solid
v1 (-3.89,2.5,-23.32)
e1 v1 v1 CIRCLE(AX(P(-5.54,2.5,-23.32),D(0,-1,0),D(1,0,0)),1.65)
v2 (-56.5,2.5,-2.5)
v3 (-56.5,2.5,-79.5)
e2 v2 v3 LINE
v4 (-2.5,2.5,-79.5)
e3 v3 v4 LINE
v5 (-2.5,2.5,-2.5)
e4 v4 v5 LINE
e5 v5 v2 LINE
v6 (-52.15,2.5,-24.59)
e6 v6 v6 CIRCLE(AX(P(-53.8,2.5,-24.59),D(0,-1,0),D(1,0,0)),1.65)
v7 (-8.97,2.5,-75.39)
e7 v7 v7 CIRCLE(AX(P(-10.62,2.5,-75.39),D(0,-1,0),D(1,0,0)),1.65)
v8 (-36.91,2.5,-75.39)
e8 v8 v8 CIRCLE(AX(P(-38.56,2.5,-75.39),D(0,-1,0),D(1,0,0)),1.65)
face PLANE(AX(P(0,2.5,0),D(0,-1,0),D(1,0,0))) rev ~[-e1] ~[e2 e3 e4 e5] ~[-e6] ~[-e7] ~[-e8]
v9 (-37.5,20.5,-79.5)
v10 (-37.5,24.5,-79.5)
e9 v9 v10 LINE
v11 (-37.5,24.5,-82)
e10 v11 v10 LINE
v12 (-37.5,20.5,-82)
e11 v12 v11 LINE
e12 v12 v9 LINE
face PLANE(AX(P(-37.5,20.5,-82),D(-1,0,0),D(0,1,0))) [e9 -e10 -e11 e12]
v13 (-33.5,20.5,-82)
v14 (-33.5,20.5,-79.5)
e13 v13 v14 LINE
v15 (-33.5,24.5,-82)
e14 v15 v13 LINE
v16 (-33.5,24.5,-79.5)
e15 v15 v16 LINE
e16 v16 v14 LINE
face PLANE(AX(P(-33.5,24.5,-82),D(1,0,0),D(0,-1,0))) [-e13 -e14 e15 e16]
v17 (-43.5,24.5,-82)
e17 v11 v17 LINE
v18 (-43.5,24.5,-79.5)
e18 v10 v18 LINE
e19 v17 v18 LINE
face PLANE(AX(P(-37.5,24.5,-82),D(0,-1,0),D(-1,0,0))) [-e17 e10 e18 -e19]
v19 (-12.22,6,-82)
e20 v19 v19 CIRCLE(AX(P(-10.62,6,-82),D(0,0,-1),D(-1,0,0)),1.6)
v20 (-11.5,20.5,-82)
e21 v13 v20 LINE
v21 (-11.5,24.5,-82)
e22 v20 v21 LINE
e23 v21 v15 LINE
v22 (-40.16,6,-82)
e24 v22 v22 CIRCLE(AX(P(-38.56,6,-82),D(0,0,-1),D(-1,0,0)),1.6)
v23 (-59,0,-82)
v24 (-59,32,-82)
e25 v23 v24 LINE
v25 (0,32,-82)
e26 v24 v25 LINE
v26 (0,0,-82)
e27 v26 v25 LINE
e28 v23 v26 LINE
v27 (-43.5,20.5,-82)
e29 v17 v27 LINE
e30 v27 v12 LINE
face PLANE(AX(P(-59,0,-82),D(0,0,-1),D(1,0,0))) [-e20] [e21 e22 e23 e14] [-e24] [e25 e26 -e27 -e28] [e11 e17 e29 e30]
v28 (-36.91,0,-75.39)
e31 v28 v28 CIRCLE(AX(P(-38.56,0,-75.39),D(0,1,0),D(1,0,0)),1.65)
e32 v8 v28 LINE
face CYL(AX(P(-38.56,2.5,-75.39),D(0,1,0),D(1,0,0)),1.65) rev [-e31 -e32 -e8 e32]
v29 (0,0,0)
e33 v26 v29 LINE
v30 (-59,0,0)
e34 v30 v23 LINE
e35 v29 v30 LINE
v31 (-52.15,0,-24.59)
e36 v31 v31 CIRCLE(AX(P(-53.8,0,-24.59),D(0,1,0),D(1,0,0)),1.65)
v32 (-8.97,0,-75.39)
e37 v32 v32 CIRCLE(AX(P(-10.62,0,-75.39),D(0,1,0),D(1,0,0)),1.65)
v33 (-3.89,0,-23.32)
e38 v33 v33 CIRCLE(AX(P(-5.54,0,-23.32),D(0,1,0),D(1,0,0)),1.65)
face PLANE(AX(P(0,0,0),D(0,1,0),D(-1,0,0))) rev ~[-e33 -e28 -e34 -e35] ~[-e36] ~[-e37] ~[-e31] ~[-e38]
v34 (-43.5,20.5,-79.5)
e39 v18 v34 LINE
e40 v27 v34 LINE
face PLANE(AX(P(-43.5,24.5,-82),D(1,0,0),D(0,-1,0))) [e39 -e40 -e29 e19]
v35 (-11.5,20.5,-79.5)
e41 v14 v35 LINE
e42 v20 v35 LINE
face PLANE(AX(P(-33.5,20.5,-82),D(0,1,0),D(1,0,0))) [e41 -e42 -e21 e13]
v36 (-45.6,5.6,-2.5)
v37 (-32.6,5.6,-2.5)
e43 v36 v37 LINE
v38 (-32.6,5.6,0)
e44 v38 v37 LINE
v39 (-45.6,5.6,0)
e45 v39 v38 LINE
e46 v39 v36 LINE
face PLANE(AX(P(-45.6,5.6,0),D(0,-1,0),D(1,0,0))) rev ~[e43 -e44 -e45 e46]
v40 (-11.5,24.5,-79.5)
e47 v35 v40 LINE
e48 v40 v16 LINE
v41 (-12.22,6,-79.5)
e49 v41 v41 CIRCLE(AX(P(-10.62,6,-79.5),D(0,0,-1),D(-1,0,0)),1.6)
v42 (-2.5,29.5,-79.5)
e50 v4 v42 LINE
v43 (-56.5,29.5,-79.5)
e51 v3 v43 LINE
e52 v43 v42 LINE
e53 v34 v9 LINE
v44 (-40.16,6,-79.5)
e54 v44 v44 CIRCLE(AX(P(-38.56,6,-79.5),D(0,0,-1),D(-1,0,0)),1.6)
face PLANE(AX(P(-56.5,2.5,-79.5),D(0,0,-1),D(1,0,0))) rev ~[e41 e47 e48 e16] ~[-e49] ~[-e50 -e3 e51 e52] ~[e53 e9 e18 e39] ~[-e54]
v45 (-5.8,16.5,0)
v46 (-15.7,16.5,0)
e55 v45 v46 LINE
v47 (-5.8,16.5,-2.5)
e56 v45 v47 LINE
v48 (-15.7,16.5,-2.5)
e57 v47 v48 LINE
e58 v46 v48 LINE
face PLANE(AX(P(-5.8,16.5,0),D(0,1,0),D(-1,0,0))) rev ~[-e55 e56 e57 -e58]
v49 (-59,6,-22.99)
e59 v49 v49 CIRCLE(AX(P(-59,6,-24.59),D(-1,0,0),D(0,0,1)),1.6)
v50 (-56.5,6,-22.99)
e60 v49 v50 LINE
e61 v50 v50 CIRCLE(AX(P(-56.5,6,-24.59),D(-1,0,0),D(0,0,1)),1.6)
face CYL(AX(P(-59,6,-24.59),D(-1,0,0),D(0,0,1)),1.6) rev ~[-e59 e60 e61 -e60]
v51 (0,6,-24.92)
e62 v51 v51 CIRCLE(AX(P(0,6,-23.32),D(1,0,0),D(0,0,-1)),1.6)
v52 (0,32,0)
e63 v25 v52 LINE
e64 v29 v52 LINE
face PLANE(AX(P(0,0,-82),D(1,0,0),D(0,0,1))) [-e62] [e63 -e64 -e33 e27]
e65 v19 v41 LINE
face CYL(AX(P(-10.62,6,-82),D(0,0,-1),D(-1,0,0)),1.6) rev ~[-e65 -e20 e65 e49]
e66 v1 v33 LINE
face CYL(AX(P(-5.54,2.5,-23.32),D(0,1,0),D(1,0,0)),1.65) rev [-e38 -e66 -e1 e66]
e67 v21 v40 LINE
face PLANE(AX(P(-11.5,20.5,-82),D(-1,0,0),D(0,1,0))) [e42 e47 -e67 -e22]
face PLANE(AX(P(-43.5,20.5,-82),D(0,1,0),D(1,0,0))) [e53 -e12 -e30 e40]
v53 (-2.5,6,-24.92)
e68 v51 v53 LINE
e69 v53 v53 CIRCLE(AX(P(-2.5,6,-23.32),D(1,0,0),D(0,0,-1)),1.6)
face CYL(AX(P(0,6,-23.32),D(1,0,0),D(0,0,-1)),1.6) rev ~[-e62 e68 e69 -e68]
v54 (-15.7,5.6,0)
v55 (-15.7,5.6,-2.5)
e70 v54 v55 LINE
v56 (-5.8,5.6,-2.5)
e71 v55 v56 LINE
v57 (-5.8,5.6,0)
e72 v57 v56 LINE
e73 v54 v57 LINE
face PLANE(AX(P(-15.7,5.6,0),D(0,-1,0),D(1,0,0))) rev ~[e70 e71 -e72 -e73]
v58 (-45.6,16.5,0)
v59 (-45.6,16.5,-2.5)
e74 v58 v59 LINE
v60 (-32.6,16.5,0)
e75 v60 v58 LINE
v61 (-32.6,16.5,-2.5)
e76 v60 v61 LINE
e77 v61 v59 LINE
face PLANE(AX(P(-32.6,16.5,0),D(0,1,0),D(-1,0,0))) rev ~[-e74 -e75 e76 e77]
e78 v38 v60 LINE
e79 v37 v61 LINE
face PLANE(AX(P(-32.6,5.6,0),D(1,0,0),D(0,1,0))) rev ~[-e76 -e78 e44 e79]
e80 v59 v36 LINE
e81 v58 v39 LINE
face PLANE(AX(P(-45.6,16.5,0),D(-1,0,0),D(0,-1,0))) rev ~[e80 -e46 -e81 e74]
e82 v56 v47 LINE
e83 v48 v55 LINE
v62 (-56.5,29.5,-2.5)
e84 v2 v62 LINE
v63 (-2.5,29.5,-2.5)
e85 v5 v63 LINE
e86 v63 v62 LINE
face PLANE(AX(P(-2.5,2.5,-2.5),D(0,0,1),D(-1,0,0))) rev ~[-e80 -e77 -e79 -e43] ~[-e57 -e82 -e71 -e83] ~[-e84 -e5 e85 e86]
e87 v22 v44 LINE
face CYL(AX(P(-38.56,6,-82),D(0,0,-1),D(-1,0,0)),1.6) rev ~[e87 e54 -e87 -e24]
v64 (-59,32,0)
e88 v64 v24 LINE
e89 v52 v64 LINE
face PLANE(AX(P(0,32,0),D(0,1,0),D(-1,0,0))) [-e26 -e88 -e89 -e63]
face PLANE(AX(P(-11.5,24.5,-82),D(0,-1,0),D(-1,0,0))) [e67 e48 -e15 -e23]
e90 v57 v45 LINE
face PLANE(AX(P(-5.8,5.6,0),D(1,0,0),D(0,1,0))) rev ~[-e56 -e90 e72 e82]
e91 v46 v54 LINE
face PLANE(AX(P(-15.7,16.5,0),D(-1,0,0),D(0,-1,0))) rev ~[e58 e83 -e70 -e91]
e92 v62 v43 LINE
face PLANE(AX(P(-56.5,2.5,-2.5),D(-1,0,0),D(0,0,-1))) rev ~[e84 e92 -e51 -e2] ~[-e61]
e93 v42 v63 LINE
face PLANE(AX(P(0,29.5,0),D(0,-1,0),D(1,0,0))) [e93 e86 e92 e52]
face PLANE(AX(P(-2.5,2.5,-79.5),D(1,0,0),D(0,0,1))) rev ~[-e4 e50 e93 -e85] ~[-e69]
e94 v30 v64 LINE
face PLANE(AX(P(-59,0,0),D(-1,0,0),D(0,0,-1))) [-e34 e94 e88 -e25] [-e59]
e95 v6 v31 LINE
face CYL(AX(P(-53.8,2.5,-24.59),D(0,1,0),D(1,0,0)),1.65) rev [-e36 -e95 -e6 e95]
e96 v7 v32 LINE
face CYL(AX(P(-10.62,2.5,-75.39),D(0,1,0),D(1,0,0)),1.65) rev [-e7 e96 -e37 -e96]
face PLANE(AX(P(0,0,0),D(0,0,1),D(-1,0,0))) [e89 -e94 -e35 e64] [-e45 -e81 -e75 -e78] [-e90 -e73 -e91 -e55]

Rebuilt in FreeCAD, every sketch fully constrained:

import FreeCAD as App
import Part
import Sketcher

V = App.Vector


def add_polygon(sketch, points):
    """Adds a closed chain of lines whose ends are joined by coincident constraints."""
    first, n = sketch.GeometryCount, len(points)
    for a, b in zip(points, points[1:] + points[:1]):
        sketch.addGeometry(Part.LineSegment(App.Vector(*a, 0), App.Vector(*b, 0)), False)
    for i in range(n):
        sketch.addConstraint(Sketcher.Constraint("Coincident", first + i, 2, first + (i + 1) % n, 1))

doc = App.newDocument("Part")
body = doc.addObject("PartDesign::Body", "Body")

# Sketch on XZ plane
sketch1 = doc.addObject("Sketcher::SketchObject", "Sketch")
body.addObject(sketch1)
sketch1.AttachmentSupport = (doc.XZ_Plane, [""])
sketch1.MapMode = "FlatFace"
add_polygon(sketch1, [(-59, 0), (0, 0), (0, -82), (-59, -82)])  # lines 0-3
sketch1.addConstraint([
    Sketcher.Constraint("Horizontal", 0),
    Sketcher.Constraint("Vertical", 1),
    Sketcher.Constraint("Horizontal", 2),
    Sketcher.Constraint("Vertical", 3),
    Sketcher.Constraint("Coincident", 0, 2, -1, 1),
    Sketcher.Constraint("DistanceX", 0, 1, 0, 2, 59.0),
    Sketcher.Constraint("DistanceY", 1, 2, 1, 1, 82.0),
])
pad1 = doc.addObject("PartDesign::Pad", "Pad")
body.addObject(pad1)
pad1.Profile = sketch1
pad1.Length = 32
pad1.Reversed = True

# Sketch on XZ plane
sketch2 = doc.addObject("Sketcher::SketchObject", "Sketch001")
body.addObject(sketch2)
sketch2.AttachmentSupport = (doc.XZ_Plane, [""])
sketch2.MapMode = "FlatFace"
sketch2.AttachmentOffset = App.Placement(V(0, 0, -2.5), App.Rotation())
add_polygon(sketch2, [(-2.5, -79.5), (-2.5, -2.5), (-56.5, -2.5), (-56.5, -79.5)])  # lines 0-3
sketch2.addConstraint([
    Sketcher.Constraint("Vertical", 0),
    Sketcher.Constraint("Horizontal", 1),
    Sketcher.Constraint("Vertical", 2),
    Sketcher.Constraint("Horizontal", 3),
    Sketcher.Constraint("DistanceX", 0, 2, -1, 1, 2.5),
    Sketcher.Constraint("DistanceY", 0, 2, -1, 1, 2.5),
    Sketcher.Constraint("DistanceX", 1, 2, 1, 1, 54.0),
    Sketcher.Constraint("DistanceY", 0, 1, 0, 2, 77.0),
])
pocket1 = doc.addObject("PartDesign::Pocket", "Pocket")
body.addObject(pocket1)
pocket1.Profile = sketch2
pocket1.Length = 27

# Sketch on XZ plane
sketch3 = doc.addObject("Sketcher::SketchObject", "Sketch002")
body.addObject(sketch3)
sketch3.AttachmentSupport = (doc.XZ_Plane, [""])
sketch3.MapMode = "FlatFace"
sketch3.AttachmentOffset = App.Placement(V(0, 0, -2.5), App.Rotation())
sketch3.addGeometry([
    Part.Circle(V(-53.8, -24.59, 0), V(0, 0, 1), 1.65),
    Part.Circle(V(-5.54, -23.32, 0), V(0, 0, 1), 1.65),
    Part.Circle(V(-38.56, -75.39, 0), V(0, 0, 1), 1.65),
    Part.Circle(V(-10.62, -75.39, 0), V(0, 0, 1), 1.65),
], False)
sketch3.addConstraint([
    Sketcher.Constraint("Equal", 0, 1),
    Sketcher.Constraint("Equal", 1, 2),
    Sketcher.Constraint("Equal", 2, 3),
    Sketcher.Constraint("Horizontal", 2, 3, 3, 3),
    Sketcher.Constraint("Diameter", 0, 3.3),
    Sketcher.Constraint("DistanceY", 2, 3, 0, 3, 50.8),
    Sketcher.Constraint("DistanceX", 0, 3, -1, 1, 53.8),
    Sketcher.Constraint("DistanceY", 0, 3, -1, 1, 24.59),
    Sketcher.Constraint("DistanceX", 1, 3, -1, 1, 5.54),
    Sketcher.Constraint("DistanceY", 1, 3, -1, 1, 23.32),
    Sketcher.Constraint("DistanceX", 2, 3, -1, 1, 38.56),
    Sketcher.Constraint("DistanceX", 3, 3, -1, 1, 10.62),
])
pocket2 = doc.addObject("PartDesign::Pocket", "Pocket001")
body.addObject(pocket2)
pocket2.Profile = sketch3
pocket2.Length = 27
pocket2.Reversed = True

# Sketch on XY plane
sketch4 = doc.addObject("Sketcher::SketchObject", "Sketch003")
body.addObject(sketch4)
sketch4.AttachmentSupport = (doc.XY_Plane, [""])
sketch4.MapMode = "FlatFace"
add_polygon(sketch4, [(-45.6, 16.5), (-45.6, 5.6), (-32.6, 5.6), (-32.6, 16.5)])  # lines 0-3
add_polygon(sketch4, [(-15.7, 16.5), (-15.7, 5.6), (-5.8, 5.6), (-5.8, 16.5)])  # lines 4-7
sketch4.addConstraint([
    Sketcher.Constraint("Vertical", 0),
    Sketcher.Constraint("Horizontal", 1),
    Sketcher.Constraint("Vertical", 2),
    Sketcher.Constraint("Horizontal", 3),
    Sketcher.Constraint("Vertical", 4),
    Sketcher.Constraint("Horizontal", 5),
    Sketcher.Constraint("Vertical", 6),
    Sketcher.Constraint("Horizontal", 7),
    Sketcher.Constraint("Horizontal", 1, 2, 4, 2),
    Sketcher.Constraint("Horizontal", 3, 2, 6, 2),
    Sketcher.Constraint("DistanceX", 1, 1, 1, 2, 13.0),
    Sketcher.Constraint("DistanceX", 5, 1, 5, 2, 9.9),
    Sketcher.Constraint("DistanceY", 0, 2, 0, 1, 10.9),
    Sketcher.Constraint("DistanceX", 0, 2, -1, 1, 45.6),
    Sketcher.Constraint("DistanceY", -1, 1, 0, 2, 5.6),
    Sketcher.Constraint("DistanceX", 4, 2, -1, 1, 15.7),
])
pocket3 = doc.addObject("PartDesign::Pocket", "Pocket002")
body.addObject(pocket3)
pocket3.Profile = sketch4
pocket3.Length = 5

# Sketch on XY plane
sketch5 = doc.addObject("Sketcher::SketchObject", "Sketch004")
body.addObject(sketch5)
sketch5.AttachmentSupport = (doc.XY_Plane, [""])
sketch5.MapMode = "FlatFace"
sketch5.AttachmentOffset = App.Placement(V(0, 0, -82), App.Rotation())
add_polygon(sketch5, [(-33.5, 24.5), (-11.5, 24.5), (-11.5, 20.5), (-33.5, 20.5)])  # lines 0-3
add_polygon(sketch5, [(-43.5, 24.5), (-37.5, 24.5), (-37.5, 20.5), (-43.5, 20.5)])  # lines 4-7
sketch5.addConstraint([
    Sketcher.Constraint("Horizontal", 0),
    Sketcher.Constraint("Vertical", 1),
    Sketcher.Constraint("Horizontal", 2),
    Sketcher.Constraint("Vertical", 3),
    Sketcher.Constraint("Horizontal", 4),
    Sketcher.Constraint("Vertical", 5),
    Sketcher.Constraint("Horizontal", 6),
    Sketcher.Constraint("Vertical", 7),
    Sketcher.Constraint("Horizontal", 3, 2, 4, 2),
    Sketcher.Constraint("Horizontal", 2, 2, 5, 2),
    Sketcher.Constraint("DistanceX", 0, 1, 0, 2, 22.0),
    Sketcher.Constraint("DistanceX", 4, 1, 4, 2, 6.0),
    Sketcher.Constraint("DistanceY", 1, 2, 1, 1, 4.0),
    Sketcher.Constraint("DistanceX", 4, 2, 3, 2, 4.0),
    Sketcher.Constraint("DistanceX", 0, 2, -1, 1, 11.5),
    Sketcher.Constraint("DistanceY", -1, 1, 0, 2, 24.5),
])
pocket4 = doc.addObject("PartDesign::Pocket", "Pocket003")
body.addObject(pocket4)
pocket4.Profile = sketch5
pocket4.Length = 5
pocket4.Reversed = True

# Sketch on YZ plane
sketch6 = doc.addObject("Sketcher::SketchObject", "Sketch005")
body.addObject(sketch6)
sketch6.AttachmentSupport = (doc.YZ_Plane, [""])
sketch6.MapMode = "FlatFace"
sketch6.AttachmentOffset = App.Placement(V(0, 0, -59), App.Rotation())
sketch6.addGeometry(Part.Circle(V(6, -24.59, 0), V(0, 0, 1), 1.6), False)
sketch6.addConstraint([
    Sketcher.Constraint("Diameter", 0, 3.2),
    Sketcher.Constraint("DistanceX", -1, 1, 0, 3, 6.0),
    Sketcher.Constraint("DistanceY", 0, 3, -1, 1, 24.59),
])
pocket5 = doc.addObject("PartDesign::Pocket", "Pocket004")
body.addObject(pocket5)
pocket5.Profile = sketch6
pocket5.Length = 5
pocket5.Reversed = True

# Sketch on YZ plane
sketch7 = doc.addObject("Sketcher::SketchObject", "Sketch006")
body.addObject(sketch7)
sketch7.AttachmentSupport = (doc.YZ_Plane, [""])
sketch7.MapMode = "FlatFace"
sketch7.addGeometry(Part.Circle(V(6, -23.32, 0), V(0, 0, 1), 1.6), False)
sketch7.addConstraint([
    Sketcher.Constraint("Diameter", 0, 3.2),
    Sketcher.Constraint("DistanceX", -1, 1, 0, 3, 6.0),
    Sketcher.Constraint("DistanceY", 0, 3, -1, 1, 23.32),
])
pocket6 = doc.addObject("PartDesign::Pocket", "Pocket005")
body.addObject(pocket6)
pocket6.Profile = sketch7
pocket6.Length = 5

# Sketch on XY plane
sketch8 = doc.addObject("Sketcher::SketchObject", "Sketch007")
body.addObject(sketch8)
sketch8.AttachmentSupport = (doc.XY_Plane, [""])
sketch8.MapMode = "FlatFace"
sketch8.AttachmentOffset = App.Placement(V(0, 0, -82), App.Rotation())
sketch8.addGeometry([
    Part.Circle(V(-10.62, 6, 0), V(0, 0, 1), 1.6),
    Part.Circle(V(-38.56, 6, 0), V(0, 0, 1), 1.6),
], False)
sketch8.addConstraint([
    Sketcher.Constraint("Equal", 0, 1),
    Sketcher.Constraint("Horizontal", 0, 3, 1, 3),
    Sketcher.Constraint("Diameter", 0, 3.2),
    Sketcher.Constraint("DistanceY", -1, 1, 0, 3, 6.0),
    Sketcher.Constraint("DistanceX", 0, 3, -1, 1, 10.62),
    Sketcher.Constraint("DistanceX", 1, 3, -1, 1, 38.56),
])
pocket7 = doc.addObject("PartDesign::Pocket", "Pocket006")
body.addObject(pocket7)
pocket7.Profile = sketch8
pocket7.Length = 5
pocket7.Reversed = True

doc.recompute()
